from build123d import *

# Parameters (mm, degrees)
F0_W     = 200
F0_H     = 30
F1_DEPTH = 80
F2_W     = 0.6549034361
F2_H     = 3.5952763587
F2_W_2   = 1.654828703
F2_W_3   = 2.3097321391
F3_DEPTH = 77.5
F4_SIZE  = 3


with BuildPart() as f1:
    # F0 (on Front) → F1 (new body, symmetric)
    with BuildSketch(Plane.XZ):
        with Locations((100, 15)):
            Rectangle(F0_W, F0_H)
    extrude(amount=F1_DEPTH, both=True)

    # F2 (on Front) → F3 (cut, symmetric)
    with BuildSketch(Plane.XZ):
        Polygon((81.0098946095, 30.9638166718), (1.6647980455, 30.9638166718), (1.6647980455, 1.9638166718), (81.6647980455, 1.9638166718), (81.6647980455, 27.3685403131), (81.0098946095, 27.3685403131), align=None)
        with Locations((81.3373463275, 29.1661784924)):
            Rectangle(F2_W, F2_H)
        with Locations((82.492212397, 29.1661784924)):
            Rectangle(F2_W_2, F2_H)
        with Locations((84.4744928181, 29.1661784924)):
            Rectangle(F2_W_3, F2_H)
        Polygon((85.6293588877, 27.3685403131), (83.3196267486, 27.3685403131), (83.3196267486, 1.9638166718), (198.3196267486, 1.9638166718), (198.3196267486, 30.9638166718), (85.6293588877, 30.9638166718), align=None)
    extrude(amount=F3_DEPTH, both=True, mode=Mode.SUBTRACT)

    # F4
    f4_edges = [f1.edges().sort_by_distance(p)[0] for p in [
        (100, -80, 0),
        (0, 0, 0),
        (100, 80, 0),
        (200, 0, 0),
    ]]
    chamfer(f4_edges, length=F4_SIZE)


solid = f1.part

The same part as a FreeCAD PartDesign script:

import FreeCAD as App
import Part
import Sketcher
from FreeCAD import Vector
Q = App.Units.Quantity


def edges_at(feature, points):
    """Names of the edges that pass closest to the given points."""
    edges = feature.Shape.Edges
    near = lambda p: min(range(len(edges)), key=lambda i: edges[i].distToShape(Part.Vertex(*p))[0])
    return sorted({f"Edge{near(p) + 1}" for p in points})

doc = App.newDocument("Part")
body = doc.addObject("PartDesign::Body", "Body")

# Sketch on XZ plane
sketch1 = doc.addObject("Sketcher::SketchObject", "Sketch")
body.addObject(sketch1)
sketch1.AttachmentSupport = (doc.XZ_Plane, [""])
sketch1.MapMode = "FlatFace"
sketch1.addGeometry([
    Part.LineSegment(Vector(0, 30, 0), Vector(0, 0, 0)),
    Part.LineSegment(Vector(0, 0, 0), Vector(200, 0, 0)),
    Part.LineSegment(Vector(200, 0, 0), Vector(200, 30, 0)),
    Part.LineSegment(Vector(200, 30, 0), Vector(0, 30, 0)),
], False)
sketch1.addConstraint([
    Sketcher.Constraint("Coincident", 0, 2, 1, 1),
    Sketcher.Constraint("Coincident", 1, 2, 2, 1),
    Sketcher.Constraint("Coincident", 2, 2, 3, 1),
    Sketcher.Constraint("Coincident", 3, 2, 0, 1),
    Sketcher.Constraint("Vertical", 0),
    Sketcher.Constraint("Horizontal", 1),
    Sketcher.Constraint("Vertical", 2),
    Sketcher.Constraint("Horizontal", 3),
    Sketcher.Constraint("Coincident", 0, 2, -1, 1),
    Sketcher.Constraint("DistanceX", 1, 1, 1, 2, Q("200 mm")),
    Sketcher.Constraint("DistanceY", 0, 2, 0, 1, Q("30 mm")),
])
pad1 = doc.addObject("PartDesign::Pad", "Pad")
body.addObject(pad1)
pad1.Profile = sketch1
pad1.Length = 160
pad1.Midplane = True

# Sketch on XZ plane
sketch2 = doc.addObject("Sketcher::SketchObject", "Sketch001")
body.addObject(sketch2)
sketch2.AttachmentSupport = (doc.XZ_Plane, [""])
sketch2.MapMode = "FlatFace"
sketch2.addGeometry([
    Part.LineSegment(Vector(1.7, 31, 0), Vector(1.7, 2, 0)),  # 0
    Part.LineSegment(Vector(1.7, 2, 0), Vector(81.7, 2, 0)),  # 1
    Part.LineSegment(Vector(81.7, 2, 0), Vector(81.7, 27.4, 0)),  # 2
    Part.LineSegment(Vector(81.7, 27.4, 0), Vector(83.3, 27.4, 0)),  # 3
    Part.LineSegment(Vector(83.3, 27.4, 0), Vector(83.3, 2, 0)),  # 4
    Part.LineSegment(Vector(83.3, 2, 0), Vector(198.3, 2, 0)),  # 5
    Part.LineSegment(Vector(198.3, 2, 0), Vector(198.3, 31, 0)),  # 6
    Part.LineSegment(Vector(198.3, 31, 0), Vector(1.7, 31, 0)),  # 7
], False)
sketch2.addConstraint([
    Sketcher.Constraint("Coincident", 0, 2, 1, 1),
    Sketcher.Constraint("Coincident", 1, 2, 2, 1),
    Sketcher.Constraint("Coincident", 2, 2, 3, 1),
    Sketcher.Constraint("Coincident", 3, 2, 4, 1),
    Sketcher.Constraint("Coincident", 4, 2, 5, 1),
    Sketcher.Constraint("Coincident", 5, 2, 6, 1),
    Sketcher.Constraint("Coincident", 6, 2, 7, 1),
    Sketcher.Constraint("Coincident", 7, 2, 0, 1),
    Sketcher.Constraint("Vertical", 0),
    Sketcher.Constraint("Horizontal", 1),
    Sketcher.Constraint("Vertical", 2),
    Sketcher.Constraint("Horizontal", 3),
    Sketcher.Constraint("Vertical", 4),
    Sketcher.Constraint("Horizontal", 5),
    Sketcher.Constraint("Vertical", 6),
    Sketcher.Constraint("Horizontal", 7),
    Sketcher.Constraint("Horizontal", 1, 2, 4, 2),
    Sketcher.Constraint("DistanceX", 1, 1, 1, 2, Q("80 mm")),
    Sketcher.Constraint("DistanceX", 5, 1, 5, 2, Q("115 mm")),
    Sketcher.Constraint("DistanceY", 0, 2, 0, 1, Q("29 mm")),
    Sketcher.Constraint("DistanceX", 3, 1, 3, 2, Q("1.654829 mm")),
    Sketcher.Constraint("DistanceX", -1, 1, 0, 2, Q("1.664798 mm")),
    Sketcher.Constraint("DistanceY", 2, 1, 2, 2, Q("25.404724 mm")),
    Sketcher.Constraint("DistanceY", -1, 1, 2, 2, Q("27.36854 mm")),
])
pocket1 = doc.addObject("PartDesign::Pocket", "Pocket")
body.addObject(pocket1)
pocket1.Profile = sketch2
pocket1.Length = 155
pocket1.Midplane = True
doc.recompute()

chamfer = doc.addObject("PartDesign::Chamfer", "Chamfer")
body.addObject(chamfer)
chamfer.Base = (pocket1, edges_at(pocket1, [
    (100, -80, 0),
    (0, 0, 0),
    (100, 80, 0),
    (200, 0, 0),
]))
chamfer.Size = 3

doc.recompute()
